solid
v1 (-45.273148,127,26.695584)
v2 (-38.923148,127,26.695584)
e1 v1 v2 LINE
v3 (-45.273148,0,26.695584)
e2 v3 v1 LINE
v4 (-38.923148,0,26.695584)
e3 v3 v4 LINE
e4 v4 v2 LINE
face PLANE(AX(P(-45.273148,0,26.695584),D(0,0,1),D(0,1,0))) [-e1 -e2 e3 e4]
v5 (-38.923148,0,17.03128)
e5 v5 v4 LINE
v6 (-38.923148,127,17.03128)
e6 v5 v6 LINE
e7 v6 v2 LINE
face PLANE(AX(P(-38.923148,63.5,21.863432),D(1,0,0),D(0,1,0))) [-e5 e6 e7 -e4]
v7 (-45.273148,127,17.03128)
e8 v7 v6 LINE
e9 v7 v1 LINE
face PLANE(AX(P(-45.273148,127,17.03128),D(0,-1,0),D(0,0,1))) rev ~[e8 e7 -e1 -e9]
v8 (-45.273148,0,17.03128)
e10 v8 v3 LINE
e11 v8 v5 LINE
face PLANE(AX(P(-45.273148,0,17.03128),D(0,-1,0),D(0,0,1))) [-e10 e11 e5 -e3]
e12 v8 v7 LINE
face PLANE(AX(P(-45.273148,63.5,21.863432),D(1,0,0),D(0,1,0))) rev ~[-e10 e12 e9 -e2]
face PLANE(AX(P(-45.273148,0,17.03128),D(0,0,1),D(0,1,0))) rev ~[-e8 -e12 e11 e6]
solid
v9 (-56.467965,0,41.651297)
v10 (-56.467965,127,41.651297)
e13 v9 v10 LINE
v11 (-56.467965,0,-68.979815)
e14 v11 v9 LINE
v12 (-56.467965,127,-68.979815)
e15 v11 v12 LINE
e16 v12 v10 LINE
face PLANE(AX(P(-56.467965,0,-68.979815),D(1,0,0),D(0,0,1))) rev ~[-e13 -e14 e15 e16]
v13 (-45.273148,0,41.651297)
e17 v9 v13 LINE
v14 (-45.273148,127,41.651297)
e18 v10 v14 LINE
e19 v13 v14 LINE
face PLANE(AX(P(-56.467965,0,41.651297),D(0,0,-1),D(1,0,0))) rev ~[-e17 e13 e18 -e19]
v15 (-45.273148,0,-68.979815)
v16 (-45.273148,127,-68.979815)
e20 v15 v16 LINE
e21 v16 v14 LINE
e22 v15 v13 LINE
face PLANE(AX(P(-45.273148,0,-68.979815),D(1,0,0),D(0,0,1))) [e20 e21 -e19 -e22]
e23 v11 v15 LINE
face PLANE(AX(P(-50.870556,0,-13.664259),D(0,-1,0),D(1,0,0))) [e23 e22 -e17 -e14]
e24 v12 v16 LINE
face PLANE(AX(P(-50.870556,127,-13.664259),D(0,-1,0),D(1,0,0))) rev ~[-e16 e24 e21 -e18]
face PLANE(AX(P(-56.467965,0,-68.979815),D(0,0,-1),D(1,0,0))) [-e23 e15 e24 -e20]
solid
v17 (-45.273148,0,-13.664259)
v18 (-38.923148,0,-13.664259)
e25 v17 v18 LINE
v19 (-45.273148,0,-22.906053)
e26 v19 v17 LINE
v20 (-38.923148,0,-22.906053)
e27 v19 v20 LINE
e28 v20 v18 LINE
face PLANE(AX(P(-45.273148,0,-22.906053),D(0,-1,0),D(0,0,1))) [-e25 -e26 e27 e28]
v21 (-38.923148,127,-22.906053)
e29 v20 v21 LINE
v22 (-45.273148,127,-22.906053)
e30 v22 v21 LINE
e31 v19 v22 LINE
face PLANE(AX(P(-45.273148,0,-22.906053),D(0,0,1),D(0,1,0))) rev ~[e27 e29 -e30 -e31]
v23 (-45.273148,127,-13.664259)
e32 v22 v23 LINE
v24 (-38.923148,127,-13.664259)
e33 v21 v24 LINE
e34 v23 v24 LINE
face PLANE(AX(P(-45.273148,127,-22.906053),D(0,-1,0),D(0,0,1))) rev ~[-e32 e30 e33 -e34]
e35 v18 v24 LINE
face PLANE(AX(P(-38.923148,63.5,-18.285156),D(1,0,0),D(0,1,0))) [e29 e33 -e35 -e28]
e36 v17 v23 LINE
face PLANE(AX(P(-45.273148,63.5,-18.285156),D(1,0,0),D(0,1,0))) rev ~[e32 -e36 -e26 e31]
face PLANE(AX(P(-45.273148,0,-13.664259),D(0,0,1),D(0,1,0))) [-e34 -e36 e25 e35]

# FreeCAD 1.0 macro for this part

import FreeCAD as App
import Part
import Sketcher
from FreeCAD import Vector
Q = App.Units.Quantity

doc = App.newDocument("Part")
body = doc.addObject("PartDesign::Body", "Body")

# Sketch on XZ plane
sketch1 = body.newObject("Sketcher::SketchObject", "Sketch")
sketch1.AttachmentSupport = (doc.getObject("XZ_Plane"), [""])
sketch1.MapMode = "FlatFace"
sketch1.addGeometry([
    Part.LineSegment(Vector(-56, 42, 0), Vector(-56, -69, 0)),
    Part.LineSegment(Vector(-56, -69, 0), Vector(-45, -69, 0)),
    Part.LineSegment(Vector(-45, -69, 0), Vector(-45, 42, 0)),
    Part.LineSegment(Vector(-45, 42, 0), Vector(-56, 42, 0)),
], False)
sketch1.addConstraint([
    Sketcher.Constraint("Coincident", 0, 2, 1, 1),
    Sketcher.Constraint("Coincident", 1, 2, 2, 1),
    Sketcher.Constraint("Coincident", 2, 2, 3, 1),
    Sketcher.Constraint("Coincident", 3, 2, 0, 1),
    Sketcher.Constraint("Vertical", 0),
    Sketcher.Constraint("Horizontal", 1),
    Sketcher.Constraint("Vertical", 2),
    Sketcher.Constraint("Horizontal", 3),
    Sketcher.Constraint("DistanceY", 0, 2, 0, 1, 110.631112),
    Sketcher.Constraint("DistanceX", 1, 1, 1, 2, 11.194817),
    Sketcher.Constraint("DistanceX", 0, 2, -1, 1, 56.467965),
    Sketcher.Constraint("DistanceY", 0, 2, -1, 1, 68.979815),
])
pad1 = body.newObject("PartDesign::Pad", "Pad")
pad1.Profile = sketch1
pad1.Length = Q("5 in")
pad1.Reversed = True
body2 = doc.addObject("PartDesign::Body", "Body001")
body2.AllowCompound = True

# Sketch on YZ plane
sketch2 = body2.newObject("Sketcher::SketchObject", "Sketch001")
sketch2.AttachmentSupport = (doc.getObject("YZ_Plane001"), [""])
sketch2.MapMode = "FlatFace"
sketch2.AttachmentOffset = App.Placement(Vector(0, 0, -45.273148), App.Rotation())
sketch2.addGeometry([
    Part.LineSegment(Vector(0, 27, 0), Vector(0, 17, 0)),  # 0
    Part.LineSegment(Vector(0, 17, 0), Vector(127, 17, 0)),  # 1
    Part.LineSegment(Vector(127, 17, 0), Vector(127, 27, 0)),  # 2
    Part.LineSegment(Vector(127, 27, 0), Vector(0, 27, 0)),  # 3
    Part.LineSegment(Vector(0, -14, 0), Vector(0, -23, 0)),  # 4
    Part.LineSegment(Vector(0, -23, 0), Vector(127, -23, 0)),  # 5
    Part.LineSegment(Vector(127, -23, 0), Vector(127, -14, 0)),  # 6
    Part.LineSegment(Vector(127, -14, 0), Vector(0, -14, 0)),  # 7
], False)
sketch2.addConstraint([
    Sketcher.Constraint("Coincident", 0, 2, 1, 1),
    Sketcher.Constraint("Coincident", 1, 2, 2, 1),
    Sketcher.Constraint("Coincident", 2, 2, 3, 1),
    Sketcher.Constraint("Coincident", 3, 2, 0, 1),
    Sketcher.Constraint("Coincident", 4, 2, 5, 1),
    Sketcher.Constraint("Coincident", 5, 2, 6, 1),
    Sketcher.Constraint("Coincident", 6, 2, 7, 1),
    Sketcher.Constraint("Coincident", 7, 2, 4, 1),
    Sketcher.Constraint("Vertical", 0),
    Sketcher.Constraint("Horizontal", 1),
    Sketcher.Constraint("Vertical", 2),
    Sketcher.Constraint("Horizontal", 3),
    Sketcher.Constraint("Vertical", 4),
    Sketcher.Constraint("Horizontal", 5),
    Sketcher.Constraint("Vertical", 6),
    Sketcher.Constraint("Horizontal", 7),
    Sketcher.Constraint("PointOnObject", 0, 2, -2),
    Sketcher.Constraint("PointOnObject", 4, 2, -2),
    Sketcher.Constraint("Vertical", 2, 2, 5, 2),
    Sketcher.Constraint("DistanceX", 1, 1, 1, 2, Q("5 in")),
    Sketcher.Constraint("DistanceY", 0, 2, 0, 1, 9.664305),
    Sketcher.Constraint("DistanceY", 4, 2, 4, 1, 9.241795),
    Sketcher.Constraint("DistanceY", -1, 1, 0, 2, 17.03128),
    Sketcher.Constraint("DistanceY", 6, 2, -1, 1, 13.664259),
])
pad2 = body2.newObject("PartDesign::Pad", "Pad001")
pad2.Profile = sketch2
pad2.Length = Q("0.25 in")

doc.recompute()
